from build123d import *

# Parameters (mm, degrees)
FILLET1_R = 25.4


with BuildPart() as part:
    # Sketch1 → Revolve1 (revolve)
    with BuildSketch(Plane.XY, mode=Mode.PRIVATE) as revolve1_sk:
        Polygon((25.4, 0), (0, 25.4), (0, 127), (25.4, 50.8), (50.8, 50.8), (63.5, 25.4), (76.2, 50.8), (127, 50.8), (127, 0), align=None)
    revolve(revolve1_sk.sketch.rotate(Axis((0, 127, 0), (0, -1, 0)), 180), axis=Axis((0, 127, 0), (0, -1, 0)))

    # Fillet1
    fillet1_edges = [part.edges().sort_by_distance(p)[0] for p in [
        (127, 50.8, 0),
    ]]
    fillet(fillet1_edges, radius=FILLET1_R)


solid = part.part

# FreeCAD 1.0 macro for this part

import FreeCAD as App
import Part
import Sketcher

V = App.Vector
Q = App.Units.Quantity


def edges_at(feature, points):
    """Names of the edges that pass closest to the given points."""
    edges = feature.Shape.Edges
    near = lambda p: min(range(len(edges)), key=lambda i: edges[i].distToShape(Part.Vertex(*p))[0])
    return sorted({f"Edge{near(p) + 1}" for p in points})

doc = App.newDocument("Part")
body = doc.addObject("PartDesign::Body", "Body")

# Sketch on XY plane
sketch1 = doc.addObject("Sketcher::SketchObject", "Sketch")
body.addObject(sketch1)
sketch1.AttachmentSupport = (doc.XY_Plane, [""])
sketch1.MapMode = "FlatFace"
sketch1.addGeometry(Part.LineSegment(V(0, 25, 0), V(25, 0, 0)), False)
sketch1.addGeometry(Part.LineSegment(V(25, 0, 0), V(127, 0, 0)), False)
sketch1.addGeometry(Part.LineSegment(V(127, 0, 0), V(127, 51, 0)), False)
sketch1.addGeometry(Part.LineSegment(V(127, 51, 0), V(76, 51, 0)), False)
sketch1.addGeometry(Part.LineSegment(V(76, 51, 0), V(64, 25, 0)), False)
sketch1.addGeometry(Part.LineSegment(V(64, 25, 0), V(51, 51, 0)), False)
sketch1.addGeometry(Part.LineSegment(V(51, 51, 0), V(25, 51, 0)), False)
sketch1.addGeometry(Part.LineSegment(V(25, 51, 0), V(0, 127, 0)), False)
sketch1.addGeometry(Part.LineSegment(V(0, 127, 0), V(0, 25, 0)), False)
sketch1.addConstraint(Sketcher.Constraint("Coincident", 0, 2, 1, 1))
sketch1.addConstraint(Sketcher.Constraint("Coincident", 1, 2, 2, 1))
sketch1.addConstraint(Sketcher.Constraint("Coincident", 2, 2, 3, 1))
sketch1.addConstraint(Sketcher.Constraint("Coincident", 3, 2, 4, 1))
sketch1.addConstraint(Sketcher.Constraint("Coincident", 4, 2, 5, 1))
sketch1.addConstraint(Sketcher.Constraint("Coincident", 5, 2, 6, 1))
sketch1.addConstraint(Sketcher.Constraint("Coincident", 6, 2, 7, 1))
sketch1.addConstraint(Sketcher.Constraint("Coincident", 7, 2, 8, 1))
sketch1.addConstraint(Sketcher.Constraint("Coincident", 8, 2, 0, 1))
sketch1.addConstraint(Sketcher.Constraint("Horizontal", 1))
sketch1.addConstraint(Sketcher.Constraint("Vertical", 2))
sketch1.addConstraint(Sketcher.Constraint("Horizontal", 3))
sketch1.addConstraint(Sketcher.Constraint("Horizontal", 6))
sketch1.addConstraint(Sketcher.Constraint("Vertical", 8))
sketch1.addConstraint(Sketcher.Constraint("PointOnObject", 0, 2, -1))
sketch1.addConstraint(Sketcher.Constraint("PointOnObject", 7, 2, -2))
sketch1.addConstraint(Sketcher.Constraint("Horizontal", 3, 2, 5, 2))
sketch1.addConstraint(Sketcher.Constraint("Horizontal", 4, 2, 8, 2))
sketch1.addConstraint(Sketcher.Constraint("Vertical", 0, 2, 6, 2))
sketch1.addConstraint(Sketcher.Constraint("Equal", 3, 2))
sketch1.addConstraint(Sketcher.Constraint("Equal", 1, 8))
sketch1.addConstraint(Sketcher.Constraint("Equal", 4, 5))
sketch1.addConstraint(Sketcher.Constraint("DistanceX", 1, 1, 1, 2, Q("4 in")))
sketch1.addConstraint(Sketcher.Constraint("DistanceX", 3, 2, 3, 1, Q("2 in")))
sketch1.addConstraint(Sketcher.Constraint("DistanceX", 6, 2, 6, 1, Q("1 in")))
sketch1.addConstraint(Sketcher.Constraint("DistanceX", -1, 1, 0, 2, Q("1 in")))
sketch1.addConstraint(Sketcher.Constraint("DistanceY", -1, 1, 4, 2, Q("1 in")))
revolution = doc.addObject("PartDesign::Revolution", "Revolution")
body.addObject(revolution)
revolution.Profile = sketch1
revolution.ReferenceAxis = (sketch1, ["V_Axis"])
revolution.Angle = 360
doc.recompute()

fillet = doc.addObject("PartDesign::Fillet", "Fillet")
body.addObject(fillet)
fillet.Base = (revolution, edges_at(revolution, [(127, 50.8, 0)]))
fillet.Radius = Q("1 in")

doc.recompute()
